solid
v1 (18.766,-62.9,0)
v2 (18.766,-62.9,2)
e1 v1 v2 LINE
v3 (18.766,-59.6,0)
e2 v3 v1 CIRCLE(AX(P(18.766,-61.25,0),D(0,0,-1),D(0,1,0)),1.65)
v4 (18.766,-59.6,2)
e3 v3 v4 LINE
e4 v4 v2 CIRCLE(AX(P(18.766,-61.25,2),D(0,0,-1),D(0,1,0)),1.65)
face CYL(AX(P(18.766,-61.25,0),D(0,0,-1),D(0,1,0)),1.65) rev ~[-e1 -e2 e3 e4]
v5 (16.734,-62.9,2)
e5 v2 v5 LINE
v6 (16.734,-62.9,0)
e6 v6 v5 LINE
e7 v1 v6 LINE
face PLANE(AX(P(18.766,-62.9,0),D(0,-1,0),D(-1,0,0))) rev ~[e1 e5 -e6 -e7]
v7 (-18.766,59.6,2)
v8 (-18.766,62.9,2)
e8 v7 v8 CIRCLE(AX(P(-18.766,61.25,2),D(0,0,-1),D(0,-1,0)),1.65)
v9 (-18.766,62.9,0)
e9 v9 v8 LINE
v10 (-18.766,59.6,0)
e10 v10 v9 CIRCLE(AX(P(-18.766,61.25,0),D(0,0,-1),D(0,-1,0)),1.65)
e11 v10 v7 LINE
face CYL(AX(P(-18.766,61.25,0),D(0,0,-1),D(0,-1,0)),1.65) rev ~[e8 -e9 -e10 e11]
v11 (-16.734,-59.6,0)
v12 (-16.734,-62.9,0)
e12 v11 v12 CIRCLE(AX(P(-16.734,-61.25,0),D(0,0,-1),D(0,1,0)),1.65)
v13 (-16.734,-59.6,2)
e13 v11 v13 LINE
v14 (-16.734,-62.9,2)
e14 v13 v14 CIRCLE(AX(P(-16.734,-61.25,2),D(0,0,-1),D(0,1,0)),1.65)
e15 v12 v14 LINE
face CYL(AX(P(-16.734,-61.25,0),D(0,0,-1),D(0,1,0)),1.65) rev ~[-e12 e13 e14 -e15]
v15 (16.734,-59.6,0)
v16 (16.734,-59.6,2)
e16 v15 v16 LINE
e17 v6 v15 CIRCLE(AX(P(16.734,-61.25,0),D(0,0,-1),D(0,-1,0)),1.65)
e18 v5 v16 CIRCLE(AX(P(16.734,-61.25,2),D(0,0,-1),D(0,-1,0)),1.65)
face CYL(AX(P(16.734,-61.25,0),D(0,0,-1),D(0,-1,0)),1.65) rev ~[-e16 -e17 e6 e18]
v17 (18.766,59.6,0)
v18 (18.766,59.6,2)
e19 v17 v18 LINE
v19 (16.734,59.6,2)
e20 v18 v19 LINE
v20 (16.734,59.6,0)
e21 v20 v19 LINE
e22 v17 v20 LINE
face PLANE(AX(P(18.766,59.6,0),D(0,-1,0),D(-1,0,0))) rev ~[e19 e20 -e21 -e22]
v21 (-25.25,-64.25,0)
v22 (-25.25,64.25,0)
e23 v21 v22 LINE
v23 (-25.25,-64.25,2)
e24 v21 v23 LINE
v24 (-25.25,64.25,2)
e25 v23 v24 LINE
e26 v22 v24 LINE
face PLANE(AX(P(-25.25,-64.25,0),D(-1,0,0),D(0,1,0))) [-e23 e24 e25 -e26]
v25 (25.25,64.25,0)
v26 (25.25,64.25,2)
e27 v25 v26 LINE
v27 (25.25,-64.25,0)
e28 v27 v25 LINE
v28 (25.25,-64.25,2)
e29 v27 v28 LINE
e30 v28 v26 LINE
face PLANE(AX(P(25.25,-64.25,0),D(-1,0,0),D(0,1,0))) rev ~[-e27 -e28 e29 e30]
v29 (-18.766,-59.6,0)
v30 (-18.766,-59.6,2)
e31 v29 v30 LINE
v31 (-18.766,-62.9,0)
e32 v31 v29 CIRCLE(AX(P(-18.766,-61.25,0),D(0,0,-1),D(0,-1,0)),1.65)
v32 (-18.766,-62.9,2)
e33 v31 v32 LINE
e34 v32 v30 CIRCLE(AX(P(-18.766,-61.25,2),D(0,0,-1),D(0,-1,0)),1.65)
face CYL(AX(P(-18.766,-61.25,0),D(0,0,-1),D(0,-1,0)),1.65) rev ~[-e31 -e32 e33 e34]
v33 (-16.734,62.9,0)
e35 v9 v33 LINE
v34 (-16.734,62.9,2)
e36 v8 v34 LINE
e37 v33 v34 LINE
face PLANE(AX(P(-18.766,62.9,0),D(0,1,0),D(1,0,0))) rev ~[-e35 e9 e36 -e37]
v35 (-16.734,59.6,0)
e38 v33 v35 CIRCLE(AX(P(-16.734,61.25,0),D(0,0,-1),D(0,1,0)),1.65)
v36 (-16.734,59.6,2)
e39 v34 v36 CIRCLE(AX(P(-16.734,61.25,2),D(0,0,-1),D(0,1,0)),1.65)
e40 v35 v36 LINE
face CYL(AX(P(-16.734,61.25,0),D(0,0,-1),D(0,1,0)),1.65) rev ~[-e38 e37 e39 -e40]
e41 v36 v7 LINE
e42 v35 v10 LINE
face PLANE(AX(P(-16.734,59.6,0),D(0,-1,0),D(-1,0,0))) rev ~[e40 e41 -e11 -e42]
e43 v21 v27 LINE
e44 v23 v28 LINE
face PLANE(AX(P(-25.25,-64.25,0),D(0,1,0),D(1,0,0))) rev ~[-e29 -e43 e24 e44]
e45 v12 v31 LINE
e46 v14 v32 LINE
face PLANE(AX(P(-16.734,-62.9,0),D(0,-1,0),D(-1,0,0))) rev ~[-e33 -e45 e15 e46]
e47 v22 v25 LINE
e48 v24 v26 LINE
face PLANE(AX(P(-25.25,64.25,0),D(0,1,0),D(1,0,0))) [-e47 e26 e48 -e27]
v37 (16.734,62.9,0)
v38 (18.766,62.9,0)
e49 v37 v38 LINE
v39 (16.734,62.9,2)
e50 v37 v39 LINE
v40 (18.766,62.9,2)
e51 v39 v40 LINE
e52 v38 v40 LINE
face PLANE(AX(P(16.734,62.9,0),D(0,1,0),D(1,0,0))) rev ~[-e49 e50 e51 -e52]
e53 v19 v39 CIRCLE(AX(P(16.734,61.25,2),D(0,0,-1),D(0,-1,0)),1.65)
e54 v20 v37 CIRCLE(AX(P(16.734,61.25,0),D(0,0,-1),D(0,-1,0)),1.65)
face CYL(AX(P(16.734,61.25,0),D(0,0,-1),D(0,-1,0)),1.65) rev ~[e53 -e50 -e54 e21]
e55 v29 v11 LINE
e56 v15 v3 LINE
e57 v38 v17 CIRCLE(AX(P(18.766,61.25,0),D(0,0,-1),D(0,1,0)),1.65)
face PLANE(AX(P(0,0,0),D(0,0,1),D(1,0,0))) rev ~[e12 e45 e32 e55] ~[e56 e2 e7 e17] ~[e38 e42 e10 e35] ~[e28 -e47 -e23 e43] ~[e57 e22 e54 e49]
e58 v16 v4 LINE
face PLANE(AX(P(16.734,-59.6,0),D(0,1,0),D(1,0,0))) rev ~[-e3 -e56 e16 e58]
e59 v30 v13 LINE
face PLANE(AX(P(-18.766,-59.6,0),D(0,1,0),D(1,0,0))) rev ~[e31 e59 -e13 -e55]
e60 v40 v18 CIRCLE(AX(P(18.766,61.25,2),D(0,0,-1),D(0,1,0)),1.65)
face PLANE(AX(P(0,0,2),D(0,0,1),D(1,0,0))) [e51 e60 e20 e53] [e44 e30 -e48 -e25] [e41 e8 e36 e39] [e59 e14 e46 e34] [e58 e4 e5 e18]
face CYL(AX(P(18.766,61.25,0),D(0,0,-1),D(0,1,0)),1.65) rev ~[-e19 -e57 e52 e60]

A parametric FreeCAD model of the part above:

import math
import FreeCAD as App
import Part
import Sketcher

V = App.Vector
Q = App.Units.Quantity

doc = App.newDocument("Part")
params = doc.addObject("Spreadsheet::Sheet", "Params")
for row, (alias, value) in enumerate([
    ("sketch1_radius", "1.65 mm"),
    ("sketch1_width", "50.5 mm"),
    ("sketch1_height", "128.5 mm"),
    ("pad1_length", "2 mm"),
], start=1):
    params.set(f"A{row}", alias)
    params.set(f"B{row}", "=" + value)
    params.setAlias(f"B{row}", alias)

body = doc.addObject("PartDesign::Body", "Body")

# Sketch on XY plane
sketch1 = doc.addObject("Sketcher::SketchObject", "Sketch")
body.addObject(sketch1)
sketch1.AttachmentSupport = (doc.XY_Plane, [""])
sketch1.MapMode = "FlatFace"
sketch1.addGeometry([
    Part.LineSegment(V(-25.25, 64.25, 0), V(-25.25, -64.25, 0)),  # 0
    Part.LineSegment(V(-25.25, -64.25, 0), V(25.25, -64.25, 0)),  # 1
    Part.LineSegment(V(25.25, -64.25, 0), V(25.25, 64.25, 0)),  # 2
    Part.LineSegment(V(25.25, 64.25, 0), V(-25.25, 64.25, 0)),  # 3
    Part.ArcOfCircle(Part.Circle(V(-18.766, -61.25, 0), V(0, 0, 1), 1.65), math.radians(90), math.radians(270)),  # 4
    Part.LineSegment(V(-18.766, -59.6, 0), V(-16.734, -59.6, 0)),  # 5
    Part.ArcOfCircle(Part.Circle(V(-16.734, -61.25, 0), V(0, 0, 1), 1.65), math.radians(-90), math.radians(90)),  # 6
    Part.LineSegment(V(-16.734, -62.9, 0), V(-18.766, -62.9, 0)),  # 7
    Part.ArcOfCircle(Part.Circle(V(16.734, -61.25, 0), V(0, 0, 1), 1.65), math.radians(90), math.radians(270)),  # 8
    Part.LineSegment(V(16.734, -59.6, 0), V(18.766, -59.6, 0)),  # 9
    Part.ArcOfCircle(Part.Circle(V(18.766, -61.25, 0), V(0, 0, 1), 1.65), math.radians(-90), math.radians(90)),  # 10
    Part.LineSegment(V(18.766, -62.9, 0), V(16.734, -62.9, 0)),  # 11
    Part.ArcOfCircle(Part.Circle(V(-18.766, 61.25, 0), V(0, 0, 1), 1.65), math.radians(90), math.radians(270)),  # 12
    Part.LineSegment(V(-18.766, 62.9, 0), V(-16.734, 62.9, 0)),  # 13
    Part.ArcOfCircle(Part.Circle(V(-16.734, 61.25, 0), V(0, 0, 1), 1.65), math.radians(-90), math.radians(90)),  # 14
    Part.LineSegment(V(-16.734, 59.6, 0), V(-18.766, 59.6, 0)),  # 15
    Part.ArcOfCircle(Part.Circle(V(16.734, 61.25, 0), V(0, 0, 1), 1.65), math.radians(90), math.radians(270)),  # 16
    Part.LineSegment(V(16.734, 62.9, 0), V(18.766, 62.9, 0)),  # 17
    Part.ArcOfCircle(Part.Circle(V(18.766, 61.25, 0), V(0, 0, 1), 1.65), math.radians(-90), math.radians(90)),  # 18
    Part.LineSegment(V(18.766, 59.6, 0), V(16.734, 59.6, 0)),  # 19
], False)
sketch1.addConstraint([
    Sketcher.Constraint("Coincident", 0, 2, 1, 1),
    Sketcher.Constraint("Coincident", 1, 2, 2, 1),
    Sketcher.Constraint("Coincident", 2, 2, 3, 1),
    Sketcher.Constraint("Coincident", 3, 2, 0, 1),
    Sketcher.Constraint("Tangent", 4, 1, 5, 1),
    Sketcher.Constraint("Tangent", 5, 2, 6, 2),
    Sketcher.Constraint("Tangent", 6, 1, 7, 1),
    Sketcher.Constraint("Tangent", 7, 2, 4, 2),
    Sketcher.Constraint("Tangent", 8, 1, 9, 1),
    Sketcher.Constraint("Tangent", 9, 2, 10, 2),
    Sketcher.Constraint("Tangent", 10, 1, 11, 1),
    Sketcher.Constraint("Tangent", 11, 2, 8, 2),
    Sketcher.Constraint("Tangent", 12, 1, 13, 1),
    Sketcher.Constraint("Tangent", 13, 2, 14, 2),
    Sketcher.Constraint("Tangent", 14, 1, 15, 1),
    Sketcher.Constraint("Tangent", 15, 2, 12, 2),
    Sketcher.Constraint("Tangent", 16, 1, 17, 1),
    Sketcher.Constraint("Tangent", 17, 2, 18, 2),
    Sketcher.Constraint("Tangent", 18, 1, 19, 1),
    Sketcher.Constraint("Tangent", 19, 2, 16, 2),
    Sketcher.Constraint("Vertical", 0),
    Sketcher.Constraint("Horizontal", 1),
    Sketcher.Constraint("Vertical", 2),
    Sketcher.Constraint("Horizontal", 3),
    Sketcher.Constraint("Horizontal", 5),
    Sketcher.Constraint("Horizontal", 7),
    Sketcher.Constraint("Horizontal", 9),
    Sketcher.Constraint("Horizontal", 11),
    Sketcher.Constraint("Horizontal", 13),
    Sketcher.Constraint("Horizontal", 15),
    Sketcher.Constraint("Horizontal", 17),
    Sketcher.Constraint("Horizontal", 19),
    Sketcher.Constraint("Equal", 6, 8),
    Sketcher.Constraint("Equal", 10, 12),
    Sketcher.Constraint("Equal", 14, 16),
    Sketcher.Constraint("Symmetric", 10, 3, 12, 3, -1, 1),
    Sketcher.Constraint("Symmetric", 6, 3, 16, 3, -1, 1),
    Sketcher.Constraint("Symmetric", 0, 2, 2, 2, -1, 1),
    Sketcher.Constraint("Symmetric", 6, 3, 8, 3, -2),
    Sketcher.Constraint("Vertical", 4, 3, 12, 3),
    Sketcher.Constraint("Vertical", 6, 3, 14, 3),
    Sketcher.Constraint("Vertical", 10, 3, 18, 3),
    Sketcher.Constraint("Radius", 4, Q("1.65 mm")),
    Sketcher.Constraint("DistanceX", 1, 1, 1, 2, Q("50.5 mm")),
    Sketcher.Constraint("DistanceY", 0, 2, 0, 1, Q("128.5 mm")),
    Sketcher.Constraint("DistanceY", 0, 2, 4, 3, Q("3 mm")),
    Sketcher.Constraint("DistanceX", 4, 3, 8, 3, Q("35.5 mm")),
    Sketcher.Constraint("DistanceX", 5, 1, 5, 2, Q("2.032 mm")),
])
sketch1.setExpression("Constraints[42]", "Params.sketch1_radius")
sketch1.setExpression("Constraints[43]", "Params.sketch1_width")
sketch1.setExpression("Constraints[44]", "Params.sketch1_height")
pad1 = doc.addObject("PartDesign::Pad", "Pad")
body.addObject(pad1)
pad1.Profile = sketch1
pad1.setExpression("Length", "Params.pad1_length")

doc.recompute()
